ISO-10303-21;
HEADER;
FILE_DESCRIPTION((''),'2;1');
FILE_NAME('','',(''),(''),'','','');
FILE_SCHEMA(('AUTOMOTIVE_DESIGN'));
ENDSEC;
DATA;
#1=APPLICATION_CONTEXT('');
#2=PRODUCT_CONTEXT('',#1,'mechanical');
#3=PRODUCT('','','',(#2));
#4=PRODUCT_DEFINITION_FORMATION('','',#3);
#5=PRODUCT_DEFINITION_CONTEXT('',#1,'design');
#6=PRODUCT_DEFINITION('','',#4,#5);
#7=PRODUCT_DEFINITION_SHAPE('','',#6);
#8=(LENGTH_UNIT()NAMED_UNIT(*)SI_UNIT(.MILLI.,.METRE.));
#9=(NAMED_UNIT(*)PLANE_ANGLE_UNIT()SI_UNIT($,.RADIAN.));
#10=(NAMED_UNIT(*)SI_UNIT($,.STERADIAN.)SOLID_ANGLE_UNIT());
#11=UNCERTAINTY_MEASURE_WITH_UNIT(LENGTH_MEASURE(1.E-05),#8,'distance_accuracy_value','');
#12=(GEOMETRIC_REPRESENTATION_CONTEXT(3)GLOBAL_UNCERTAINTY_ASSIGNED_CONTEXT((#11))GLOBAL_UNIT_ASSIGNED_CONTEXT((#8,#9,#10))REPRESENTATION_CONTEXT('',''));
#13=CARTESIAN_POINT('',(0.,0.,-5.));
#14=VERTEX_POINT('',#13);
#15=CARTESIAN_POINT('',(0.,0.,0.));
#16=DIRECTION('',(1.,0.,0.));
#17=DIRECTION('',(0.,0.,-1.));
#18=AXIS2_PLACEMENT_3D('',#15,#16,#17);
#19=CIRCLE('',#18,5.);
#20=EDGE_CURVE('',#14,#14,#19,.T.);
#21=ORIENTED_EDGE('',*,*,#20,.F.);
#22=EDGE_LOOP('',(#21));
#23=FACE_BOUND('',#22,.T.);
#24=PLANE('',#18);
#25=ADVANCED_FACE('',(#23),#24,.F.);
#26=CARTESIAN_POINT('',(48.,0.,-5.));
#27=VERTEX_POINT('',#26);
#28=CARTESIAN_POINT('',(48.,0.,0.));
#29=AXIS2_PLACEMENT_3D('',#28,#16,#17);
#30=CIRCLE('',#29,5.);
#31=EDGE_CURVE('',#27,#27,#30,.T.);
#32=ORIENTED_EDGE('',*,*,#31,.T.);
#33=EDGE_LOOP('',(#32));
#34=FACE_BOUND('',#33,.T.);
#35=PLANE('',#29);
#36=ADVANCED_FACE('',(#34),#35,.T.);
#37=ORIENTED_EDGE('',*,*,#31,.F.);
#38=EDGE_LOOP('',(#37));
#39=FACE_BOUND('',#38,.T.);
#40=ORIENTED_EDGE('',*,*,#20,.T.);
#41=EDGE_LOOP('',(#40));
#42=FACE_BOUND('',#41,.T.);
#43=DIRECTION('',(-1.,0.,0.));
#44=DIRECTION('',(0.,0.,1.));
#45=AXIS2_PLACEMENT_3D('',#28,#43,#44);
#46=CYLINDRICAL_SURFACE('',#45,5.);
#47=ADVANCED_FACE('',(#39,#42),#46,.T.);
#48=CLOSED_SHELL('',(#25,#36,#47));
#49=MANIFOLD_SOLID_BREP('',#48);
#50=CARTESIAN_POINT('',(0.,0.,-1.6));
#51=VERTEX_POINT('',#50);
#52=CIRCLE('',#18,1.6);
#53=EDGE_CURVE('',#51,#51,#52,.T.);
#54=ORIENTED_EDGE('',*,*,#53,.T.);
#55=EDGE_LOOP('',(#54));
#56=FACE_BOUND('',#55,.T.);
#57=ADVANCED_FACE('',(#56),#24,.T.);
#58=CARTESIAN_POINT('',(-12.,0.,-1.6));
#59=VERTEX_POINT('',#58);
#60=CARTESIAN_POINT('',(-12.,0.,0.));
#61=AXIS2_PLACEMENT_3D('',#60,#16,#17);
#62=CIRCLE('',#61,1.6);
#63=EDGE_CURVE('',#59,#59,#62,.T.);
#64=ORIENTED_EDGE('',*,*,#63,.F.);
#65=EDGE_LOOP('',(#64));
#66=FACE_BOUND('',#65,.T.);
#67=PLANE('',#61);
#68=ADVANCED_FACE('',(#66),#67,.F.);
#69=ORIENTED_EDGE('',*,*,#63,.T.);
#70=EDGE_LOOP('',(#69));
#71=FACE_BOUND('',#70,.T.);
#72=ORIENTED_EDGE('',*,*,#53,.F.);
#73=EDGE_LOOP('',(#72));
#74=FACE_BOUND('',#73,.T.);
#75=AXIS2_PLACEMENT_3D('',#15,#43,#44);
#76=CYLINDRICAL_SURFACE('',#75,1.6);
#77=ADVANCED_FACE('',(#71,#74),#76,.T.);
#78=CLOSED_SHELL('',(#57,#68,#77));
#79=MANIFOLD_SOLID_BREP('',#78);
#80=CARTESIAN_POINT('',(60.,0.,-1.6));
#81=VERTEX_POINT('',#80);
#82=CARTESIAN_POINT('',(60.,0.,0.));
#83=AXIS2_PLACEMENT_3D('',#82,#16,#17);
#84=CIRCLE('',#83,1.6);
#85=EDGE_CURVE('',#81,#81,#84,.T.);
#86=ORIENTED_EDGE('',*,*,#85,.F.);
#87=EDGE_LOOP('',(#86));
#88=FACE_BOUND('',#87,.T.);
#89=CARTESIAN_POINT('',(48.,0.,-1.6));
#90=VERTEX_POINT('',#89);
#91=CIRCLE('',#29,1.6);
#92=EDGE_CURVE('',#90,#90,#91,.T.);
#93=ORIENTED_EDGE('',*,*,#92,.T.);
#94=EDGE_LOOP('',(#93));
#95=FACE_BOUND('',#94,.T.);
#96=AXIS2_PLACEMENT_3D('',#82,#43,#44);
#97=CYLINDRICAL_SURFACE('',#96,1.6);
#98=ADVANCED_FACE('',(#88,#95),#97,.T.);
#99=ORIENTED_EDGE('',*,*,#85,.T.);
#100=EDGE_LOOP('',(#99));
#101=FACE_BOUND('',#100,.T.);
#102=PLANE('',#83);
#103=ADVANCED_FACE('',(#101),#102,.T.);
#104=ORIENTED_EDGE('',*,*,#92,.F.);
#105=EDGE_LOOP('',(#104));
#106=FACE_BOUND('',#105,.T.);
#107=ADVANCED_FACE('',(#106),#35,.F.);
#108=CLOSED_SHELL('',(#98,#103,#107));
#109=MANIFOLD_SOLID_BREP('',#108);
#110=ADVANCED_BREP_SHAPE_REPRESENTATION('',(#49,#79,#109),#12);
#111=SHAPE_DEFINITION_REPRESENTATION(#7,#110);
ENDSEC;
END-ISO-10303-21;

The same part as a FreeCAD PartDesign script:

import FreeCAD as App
import Part
import Sketcher
from FreeCAD import Vector

doc = App.newDocument("Part")
body = doc.addObject("PartDesign::Body", "Body")

# Sketch on YZ plane
sketch1 = body.newObject("Sketcher::SketchObject", "Sketch")
sketch1.AttachmentSupport = (doc.getObject("YZ_Plane"), [""])
sketch1.MapMode = "FlatFace"
sketch1.addGeometry(Part.Circle(Vector(0, 0, 0), Vector(0, 0, 1), 5), False)
sketch1.addConstraint(Sketcher.Constraint("Coincident", 0, 3, -1, 1))
sketch1.addConstraint(Sketcher.Constraint("Diameter", 0, 10.0))
pad1 = body.newObject("PartDesign::Pad", "Pad")
pad1.Profile = sketch1
pad1.Length = 48
body2 = doc.addObject("PartDesign::Body", "Body001")

# Sketch on YZ plane
sketch2 = body2.newObject("Sketcher::SketchObject", "Sketch001")
sketch2.AttachmentSupport = (doc.getObject("YZ_Plane001"), [""])
sketch2.MapMode = "FlatFace"
sketch2.AttachmentOffset = App.Placement(Vector(0, 0, -12), App.Rotation())
sketch2.addGeometry(Part.Circle(Vector(0, 0, 0), Vector(0, 0, 1), 1.6), False)
sketch2.addConstraint(Sketcher.Constraint("Coincident", 0, 3, -1, 1))
sketch2.addConstraint(Sketcher.Constraint("Diameter", 0, 3.2))
pad2 = body2.newObject("PartDesign::Pad", "Pad001")
pad2.Profile = sketch2
pad2.Length = 12
body3 = doc.addObject("PartDesign::Body", "Body002")

# Sketch on YZ plane
sketch3 = body3.newObject("Sketcher::SketchObject", "Sketch002")
sketch3.AttachmentSupport = (doc.getObject("YZ_Plane002"), [""])
sketch3.MapMode = "FlatFace"
sketch3.AttachmentOffset = App.Placement(Vector(0, 0, 48), App.Rotation())
sketch3.addGeometry(Part.Circle(Vector(0, 0, 0), Vector(0, 0, 1), 1.6), False)
sketch3.addConstraint(Sketcher.Constraint("Coincident", 0, 3, -1, 1))
sketch3.addConstraint(Sketcher.Constraint("Diameter", 0, 3.2))
pad3 = body3.newObject("PartDesign::Pad", "Pad002")
pad3.Profile = sketch3
pad3.Length = 12

doc.recompute()
